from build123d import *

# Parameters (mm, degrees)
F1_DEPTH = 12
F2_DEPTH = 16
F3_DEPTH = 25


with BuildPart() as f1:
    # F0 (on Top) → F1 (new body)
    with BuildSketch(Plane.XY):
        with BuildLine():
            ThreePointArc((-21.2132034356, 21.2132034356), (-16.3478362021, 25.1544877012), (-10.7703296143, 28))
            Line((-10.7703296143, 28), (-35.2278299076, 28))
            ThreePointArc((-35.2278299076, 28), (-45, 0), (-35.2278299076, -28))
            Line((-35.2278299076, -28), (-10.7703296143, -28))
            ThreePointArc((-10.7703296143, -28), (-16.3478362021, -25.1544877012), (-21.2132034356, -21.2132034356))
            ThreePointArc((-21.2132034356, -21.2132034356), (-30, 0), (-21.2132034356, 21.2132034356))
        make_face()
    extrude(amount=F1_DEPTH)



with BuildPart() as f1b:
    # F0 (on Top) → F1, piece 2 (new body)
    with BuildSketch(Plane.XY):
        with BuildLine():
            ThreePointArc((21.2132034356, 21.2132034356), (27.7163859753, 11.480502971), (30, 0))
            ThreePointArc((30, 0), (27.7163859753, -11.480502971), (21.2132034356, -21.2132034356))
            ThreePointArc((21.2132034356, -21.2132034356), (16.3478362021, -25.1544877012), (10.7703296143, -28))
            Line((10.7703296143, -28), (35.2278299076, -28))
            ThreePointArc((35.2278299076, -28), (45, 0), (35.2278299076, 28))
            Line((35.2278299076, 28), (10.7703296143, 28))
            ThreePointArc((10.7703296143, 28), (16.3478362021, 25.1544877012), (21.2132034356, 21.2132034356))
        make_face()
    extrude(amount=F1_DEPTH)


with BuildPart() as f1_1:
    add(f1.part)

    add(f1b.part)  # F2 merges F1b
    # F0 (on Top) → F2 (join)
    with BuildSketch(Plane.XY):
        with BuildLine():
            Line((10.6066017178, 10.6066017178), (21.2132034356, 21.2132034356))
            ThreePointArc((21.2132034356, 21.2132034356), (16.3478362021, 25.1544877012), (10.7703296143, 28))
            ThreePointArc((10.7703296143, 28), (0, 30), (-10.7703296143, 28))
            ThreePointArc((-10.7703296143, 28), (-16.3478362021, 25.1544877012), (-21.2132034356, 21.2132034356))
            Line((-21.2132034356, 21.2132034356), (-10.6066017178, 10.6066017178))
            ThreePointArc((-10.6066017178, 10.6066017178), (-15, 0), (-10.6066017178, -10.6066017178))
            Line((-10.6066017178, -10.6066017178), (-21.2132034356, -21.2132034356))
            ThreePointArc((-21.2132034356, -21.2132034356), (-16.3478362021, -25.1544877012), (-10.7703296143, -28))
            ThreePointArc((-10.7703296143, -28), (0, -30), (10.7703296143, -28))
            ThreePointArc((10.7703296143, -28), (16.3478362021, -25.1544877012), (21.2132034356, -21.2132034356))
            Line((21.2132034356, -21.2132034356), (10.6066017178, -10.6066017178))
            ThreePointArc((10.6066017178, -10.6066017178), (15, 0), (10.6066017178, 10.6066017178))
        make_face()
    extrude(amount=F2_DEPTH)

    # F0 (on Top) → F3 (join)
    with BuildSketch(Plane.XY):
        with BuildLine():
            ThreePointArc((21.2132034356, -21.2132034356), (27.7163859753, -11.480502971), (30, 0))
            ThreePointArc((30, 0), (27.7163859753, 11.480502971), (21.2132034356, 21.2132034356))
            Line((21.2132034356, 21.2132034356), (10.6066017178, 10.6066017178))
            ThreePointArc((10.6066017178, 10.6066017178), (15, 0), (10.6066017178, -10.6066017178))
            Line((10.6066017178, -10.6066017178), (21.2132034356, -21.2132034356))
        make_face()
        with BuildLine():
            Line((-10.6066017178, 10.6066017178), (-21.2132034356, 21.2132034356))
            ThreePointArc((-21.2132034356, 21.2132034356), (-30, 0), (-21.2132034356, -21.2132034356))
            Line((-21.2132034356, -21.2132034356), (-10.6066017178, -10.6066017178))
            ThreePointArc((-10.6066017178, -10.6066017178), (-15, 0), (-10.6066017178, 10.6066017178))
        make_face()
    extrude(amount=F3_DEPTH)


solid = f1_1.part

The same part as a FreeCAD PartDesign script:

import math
import FreeCAD as App
import Part
import Sketcher

V = App.Vector
Q = App.Units.Quantity

doc = App.newDocument("Part")
body = doc.addObject("PartDesign::Body", "Body")

# Sketch on XY plane
sketch1 = body.newObject("Sketcher::SketchObject", "Sketch")
sketch1.AttachmentSupport = (doc.getObject("XY_Plane"), [""])
sketch1.MapMode = "FlatFace"
sketch1.addGeometry(Part.LineSegment(V(-11, 28, 0), V(-35, 28, 0)), False)
sketch1.addGeometry(Part.ArcOfCircle(Part.Circle(V(0, 0, 0), V(0, 0, 1), 45), math.radians(142), math.radians(218)), False)
sketch1.addGeometry(Part.LineSegment(V(-35, -28, 0), V(-11, -28, 0)), False)
sketch1.addGeometry(Part.ArcOfCircle(Part.Circle(V(0, 0, 0), V(0, 0, 1), 30), math.radians(111), math.radians(249)), False)
sketch1.addConstraint(Sketcher.Constraint("Coincident", 0, 2, 1, 1))
sketch1.addConstraint(Sketcher.Constraint("Coincident", 1, 2, 2, 1))
sketch1.addConstraint(Sketcher.Constraint("Coincident", 2, 2, 3, 2))
sketch1.addConstraint(Sketcher.Constraint("Coincident", 3, 1, 0, 1))
sketch1.addConstraint(Sketcher.Constraint("Horizontal", 0))
sketch1.addConstraint(Sketcher.Constraint("Horizontal", 2))
sketch1.addConstraint(Sketcher.Constraint("Coincident", 1, 3, -1, 1))
sketch1.addConstraint(Sketcher.Constraint("Coincident", 3, 3, -1, 1))
sketch1.addConstraint(Sketcher.Constraint("Vertical", 0, 2, 1, 2))
sketch1.addConstraint(Sketcher.Constraint("Radius", 1, Q("45 mm")))
sketch1.addConstraint(Sketcher.Constraint("Radius", 3, Q("30 mm")))
sketch1.addConstraint(Sketcher.Constraint("DistanceY", -1, 1, 0, 2, Q("28 mm")))
pad1 = body.newObject("PartDesign::Pad", "Pad")
pad1.Profile = sketch1
pad1.Length = 12
body2 = doc.addObject("PartDesign::Body", "Body001")

# Sketch on XY plane
sketch2 = body2.newObject("Sketcher::SketchObject", "Sketch001")
sketch2.AttachmentSupport = (doc.getObject("XY_Plane001"), [""])
sketch2.MapMode = "FlatFace"
sketch2.addGeometry(Part.ArcOfCircle(Part.Circle(V(0, 0, 0), V(0, 0, 1), 30), math.radians(0), math.radians(45)), False)
sketch2.addGeometry(Part.ArcOfCircle(Part.Circle(V(0, 0, 0), V(0, 0, 1), 30), math.radians(-45), math.radians(0)), False)
sketch2.addGeometry(Part.ArcOfCircle(Part.Circle(V(0, 0, 0), V(0, 0, 1), 30), math.radians(-69), math.radians(-45)), False)
sketch2.addGeometry(Part.LineSegment(V(11, -28, 0), V(35, -28, 0)), False)
sketch2.addGeometry(Part.ArcOfCircle(Part.Circle(V(0, 0, 0), V(0, 0, 1), 45), math.radians(-38), math.radians(38)), False)
sketch2.addGeometry(Part.LineSegment(V(35, 28, 0), V(11, 28, 0)), False)
sketch2.addGeometry(Part.ArcOfCircle(Part.Circle(V(0, 0, 0), V(0, 0, 1), 30), math.radians(45), math.radians(69)), False)
sketch2.addConstraint(Sketcher.Constraint("Tangent", 0, 1, 1, 2))
sketch2.addConstraint(Sketcher.Constraint("Tangent", 1, 1, 2, 2))
sketch2.addConstraint(Sketcher.Constraint("Coincident", 2, 1, 3, 1))
sketch2.addConstraint(Sketcher.Constraint("Coincident", 3, 2, 4, 1))
sketch2.addConstraint(Sketcher.Constraint("Coincident", 4, 2, 5, 1))
sketch2.addConstraint(Sketcher.Constraint("Coincident", 5, 2, 6, 2))
sketch2.addConstraint(Sketcher.Constraint("Tangent", 6, 1, 0, 2))
sketch2.addConstraint(Sketcher.Constraint("Horizontal", 3))
sketch2.addConstraint(Sketcher.Constraint("Horizontal", 5))
sketch2.addConstraint(Sketcher.Constraint("Coincident", 0, 3, -1, 1))
sketch2.addConstraint(Sketcher.Constraint("Coincident", 2, 3, -1, 1))
sketch2.addConstraint(Sketcher.Constraint("Coincident", 4, 3, -1, 1))
sketch2.addConstraint(Sketcher.Constraint("Equal", 2, 6))
sketch2.addConstraint(Sketcher.Constraint("PointOnObject", 0, 1, -1))
sketch2.addConstraint(Sketcher.Constraint("Vertical", 3, 2, 4, 2))
sketch2.addConstraint(Sketcher.Constraint("Vertical", 1, 1, 6, 1))
sketch2.addConstraint(Sketcher.Constraint("Radius", 0, Q("30 mm")))
sketch2.addConstraint(Sketcher.Constraint("Radius", 4, Q("45 mm")))
sketch2.addConstraint(Sketcher.Constraint("DistanceY", 2, 1, -1, 1, Q("28 mm")))
sketch2.addConstraint(Sketcher.Constraint("DistanceX", -1, 1, 1, 1, Q("21.213203 mm")))
pad2 = body2.newObject("PartDesign::Pad", "Pad001")
pad2.Profile = sketch2
pad2.Length = 12
body.AllowCompound = True
doc.recompute()

boolean = body.newObject("PartDesign::Boolean", "Boolean")
boolean.Type = "Fuse"
boolean.addObjects([body2])

# Sketch on XY plane
sketch3 = body.newObject("Sketcher::SketchObject", "Sketch002")
sketch3.AttachmentSupport = (doc.getObject("XY_Plane"), [""])
sketch3.MapMode = "FlatFace"
sketch3.addGeometry(Part.LineSegment(V(11, 11, 0), V(21, 21, 0)), False)
sketch3.addGeometry(Part.ArcOfCircle(Part.Circle(V(0, 0, 0), V(0, 0, 1), 30), math.radians(45), math.radians(69)), False)
sketch3.addGeometry(Part.ArcOfCircle(Part.Circle(V(0, 0, 0), V(0, 0, 1), 30), math.radians(69), math.radians(111)), False)
sketch3.addGeometry(Part.ArcOfCircle(Part.Circle(V(0, 0, 0), V(0, 0, 1), 30), math.radians(111), math.radians(135)), False)
sketch3.addGeometry(Part.LineSegment(V(-21, 21, 0), V(-11, 11, 0)), False)
sketch3.addGeometry(Part.ArcOfCircle(Part.Circle(V(0, 0, 0), V(0, 0, 1), 15), math.radians(135), math.radians(225)), False)
sketch3.addGeometry(Part.LineSegment(V(-11, -11, 0), V(-21, -21, 0)), False)
sketch3.addGeometry(Part.ArcOfCircle(Part.Circle(V(0, 0, 0), V(0, 0, 1), 30), math.radians(-135), math.radians(-111)), False)
sketch3.addGeometry(Part.ArcOfCircle(Part.Circle(V(0, 0, 0), V(0, 0, 1), 30), math.radians(-111), math.radians(-69)), False)
sketch3.addGeometry(Part.ArcOfCircle(Part.Circle(V(0, 0, 0), V(0, 0, 1), 30), math.radians(-69), math.radians(-45)), False)
sketch3.addGeometry(Part.LineSegment(V(21, -21, 0), V(11, -11, 0)), False)
sketch3.addGeometry(Part.ArcOfCircle(Part.Circle(V(0, 0, 0), V(0, 0, 1), 15), math.radians(-45), math.radians(45)), False)
sketch3.addConstraint(Sketcher.Constraint("Coincident", 0, 2, 1, 1))
sketch3.addConstraint(Sketcher.Constraint("Tangent", 1, 2, 2, 1))
sketch3.addConstraint(Sketcher.Constraint("Tangent", 2, 2, 3, 1))
sketch3.addConstraint(Sketcher.Constraint("Coincident", 3, 2, 4, 1))
sketch3.addConstraint(Sketcher.Constraint("Coincident", 4, 2, 5, 1))
sketch3.addConstraint(Sketcher.Constraint("Coincident", 5, 2, 6, 1))
sketch3.addConstraint(Sketcher.Constraint("Coincident", 6, 2, 7, 1))
sketch3.addConstraint(Sketcher.Constraint("Tangent", 7, 2, 8, 1))
sketch3.addConstraint(Sketcher.Constraint("Tangent", 8, 2, 9, 1))
sketch3.addConstraint(Sketcher.Constraint("Coincident", 9, 2, 10, 1))
sketch3.addConstraint(Sketcher.Constraint("Coincident", 10, 2, 11, 1))
sketch3.addConstraint(Sketcher.Constraint("Coincident", 11, 2, 0, 1))
sketch3.addConstraint(Sketcher.Constraint("Coincident", 1, 3, -1, 1))
sketch3.addConstraint(Sketcher.Constraint("Coincident", 3, 3, -1, 1))
sketch3.addConstraint(Sketcher.Constraint("Coincident", 5, 3, -1, 1))
sketch3.addConstraint(Sketcher.Constraint("Coincident", 7, 3, -1, 1))
sketch3.addConstraint(Sketcher.Constraint("Coincident", 9, 3, -1, 1))
sketch3.addConstraint(Sketcher.Constraint("Coincident", 11, 3, -1, 1))
sketch3.addConstraint(Sketcher.Constraint("Equal", 3, 7))
sketch3.addConstraint(Sketcher.Constraint("Equal", 5, 11))
sketch3.addConstraint(Sketcher.Constraint("Perpendicular", 0, 4))
sketch3.addConstraint(Sketcher.Constraint("Perpendicular", 4, 6))
sketch3.addConstraint(Sketcher.Constraint("Perpendicular", 6, 10))
sketch3.addConstraint(Sketcher.Constraint("Horizontal", 1, 2, 2, 2))
sketch3.addConstraint(Sketcher.Constraint("Horizontal", 0, 2, 3, 2))
sketch3.addConstraint(Sketcher.Constraint("Horizontal", 7, 2, 8, 2))
sketch3.addConstraint(Sketcher.Constraint("Horizontal", 6, 2, 9, 2))
sketch3.addConstraint(Sketcher.Constraint("Horizontal", 5, 2, 10, 2))
sketch3.addConstraint(Sketcher.Constraint("Vertical", 4, 2, 5, 2))
sketch3.addConstraint(Sketcher.Constraint("Vertical", 2, 2, 7, 2))
sketch3.addConstraint(Sketcher.Constraint("Radius", 1, Q("30 mm")))
sketch3.addConstraint(Sketcher.Constraint("Radius", 5, Q("15 mm")))
sketch3.addConstraint(Sketcher.Constraint("DistanceY", -1, 1, 1, 2, Q("28 mm")))
sketch3.addConstraint(Sketcher.Constraint("DistanceX", 4, 2, -1, 1, Q("10.606602 mm")))
pad3 = body.newObject("PartDesign::Pad", "Pad002")
pad3.Profile = sketch3
pad3.Length = 16

# Sketch on XY plane
sketch4 = body.newObject("Sketcher::SketchObject", "Sketch003")
sketch4.AttachmentSupport = (doc.getObject("XY_Plane"), [""])
sketch4.MapMode = "FlatFace"
sketch4.addGeometry(Part.ArcOfCircle(Part.Circle(V(0, 0, 0), V(0, 0, 1), 30), math.radians(-45), math.radians(0)), False)
sketch4.addGeometry(Part.ArcOfCircle(Part.Circle(V(0, 0, 0), V(0, 0, 1), 30), math.radians(0), math.radians(45)), False)
sketch4.addGeometry(Part.LineSegment(V(21, 21, 0), V(11, 11, 0)), False)
sketch4.addGeometry(Part.ArcOfCircle(Part.Circle(V(0, 0, 0), V(0, 0, 1), 15), math.radians(-45), math.radians(45)), False)
sketch4.addGeometry(Part.LineSegment(V(11, -11, 0), V(21, -21, 0)), False)
sketch4.addGeometry(Part.LineSegment(V(-11, 11, 0), V(-21, 21, 0)), False)
sketch4.addGeometry(Part.ArcOfCircle(Part.Circle(V(0, 0, 0), V(0, 0, 1), 30), math.radians(135), math.radians(225)), False)
sketch4.addGeometry(Part.LineSegment(V(-21, -21, 0), V(-11, -11, 0)), False)
sketch4.addGeometry(Part.ArcOfCircle(Part.Circle(V(0, 0, 0), V(0, 0, 1), 15), math.radians(135), math.radians(225)), False)
sketch4.addConstraint(Sketcher.Constraint("Tangent", 0, 2, 1, 1))
sketch4.addConstraint(Sketcher.Constraint("Coincident", 1, 2, 2, 1))
sketch4.addConstraint(Sketcher.Constraint("Coincident", 2, 2, 3, 2))
sketch4.addConstraint(Sketcher.Constraint("Coincident", 3, 1, 4, 1))
sketch4.addConstraint(Sketcher.Constraint("Coincident", 4, 2, 0, 1))
sketch4.addConstraint(Sketcher.Constraint("Coincident", 5, 2, 6, 1))
sketch4.addConstraint(Sketcher.Constraint("Coincident", 6, 2, 7, 1))
sketch4.addConstraint(Sketcher.Constraint("Coincident", 7, 2, 8, 2))
sketch4.addConstraint(Sketcher.Constraint("Coincident", 8, 1, 5, 1))
sketch4.addConstraint(Sketcher.Constraint("Coincident", 0, 3, -1, 1))
sketch4.addConstraint(Sketcher.Constraint("Coincident", 3, 3, -1, 1))
sketch4.addConstraint(Sketcher.Constraint("Coincident", 6, 3, -1, 1))
sketch4.addConstraint(Sketcher.Constraint("Coincident", 8, 3, -1, 1))
sketch4.addConstraint(Sketcher.Constraint("Equal", 0, 1))
sketch4.addConstraint(Sketcher.Constraint("Equal", 1, 6))
sketch4.addConstraint(Sketcher.Constraint("Equal", 3, 8))
sketch4.addConstraint(Sketcher.Constraint("PointOnObject", 0, 2, -1))
sketch4.addConstraint(Sketcher.Constraint("Perpendicular", 2, 4))
sketch4.addConstraint(Sketcher.Constraint("Parallel", 4, 5))
sketch4.addConstraint(Sketcher.Constraint("Perpendicular", 5, 7))
sketch4.addConstraint(Sketcher.Constraint("Horizontal", 1, 2, 5, 2))
sketch4.addConstraint(Sketcher.Constraint("Horizontal", 4, 2, 6, 2))
sketch4.addConstraint(Sketcher.Constraint("Horizontal", 3, 1, 7, 2))
sketch4.addConstraint(Sketcher.Constraint("Vertical", 2, 2, 3, 1))
sketch4.addConstraint(Sketcher.Constraint("Radius", 0, Q("30 mm")))
sketch4.addConstraint(Sketcher.Constraint("Radius", 3, Q("15 mm")))
sketch4.addConstraint(Sketcher.Constraint("DistanceX", -1, 1, 2, 2, Q("10.606602 mm")))
pad4 = body.newObject("PartDesign::Pad", "Pad003")
pad4.Profile = sketch4
pad4.Length = 25

doc.recompute()
